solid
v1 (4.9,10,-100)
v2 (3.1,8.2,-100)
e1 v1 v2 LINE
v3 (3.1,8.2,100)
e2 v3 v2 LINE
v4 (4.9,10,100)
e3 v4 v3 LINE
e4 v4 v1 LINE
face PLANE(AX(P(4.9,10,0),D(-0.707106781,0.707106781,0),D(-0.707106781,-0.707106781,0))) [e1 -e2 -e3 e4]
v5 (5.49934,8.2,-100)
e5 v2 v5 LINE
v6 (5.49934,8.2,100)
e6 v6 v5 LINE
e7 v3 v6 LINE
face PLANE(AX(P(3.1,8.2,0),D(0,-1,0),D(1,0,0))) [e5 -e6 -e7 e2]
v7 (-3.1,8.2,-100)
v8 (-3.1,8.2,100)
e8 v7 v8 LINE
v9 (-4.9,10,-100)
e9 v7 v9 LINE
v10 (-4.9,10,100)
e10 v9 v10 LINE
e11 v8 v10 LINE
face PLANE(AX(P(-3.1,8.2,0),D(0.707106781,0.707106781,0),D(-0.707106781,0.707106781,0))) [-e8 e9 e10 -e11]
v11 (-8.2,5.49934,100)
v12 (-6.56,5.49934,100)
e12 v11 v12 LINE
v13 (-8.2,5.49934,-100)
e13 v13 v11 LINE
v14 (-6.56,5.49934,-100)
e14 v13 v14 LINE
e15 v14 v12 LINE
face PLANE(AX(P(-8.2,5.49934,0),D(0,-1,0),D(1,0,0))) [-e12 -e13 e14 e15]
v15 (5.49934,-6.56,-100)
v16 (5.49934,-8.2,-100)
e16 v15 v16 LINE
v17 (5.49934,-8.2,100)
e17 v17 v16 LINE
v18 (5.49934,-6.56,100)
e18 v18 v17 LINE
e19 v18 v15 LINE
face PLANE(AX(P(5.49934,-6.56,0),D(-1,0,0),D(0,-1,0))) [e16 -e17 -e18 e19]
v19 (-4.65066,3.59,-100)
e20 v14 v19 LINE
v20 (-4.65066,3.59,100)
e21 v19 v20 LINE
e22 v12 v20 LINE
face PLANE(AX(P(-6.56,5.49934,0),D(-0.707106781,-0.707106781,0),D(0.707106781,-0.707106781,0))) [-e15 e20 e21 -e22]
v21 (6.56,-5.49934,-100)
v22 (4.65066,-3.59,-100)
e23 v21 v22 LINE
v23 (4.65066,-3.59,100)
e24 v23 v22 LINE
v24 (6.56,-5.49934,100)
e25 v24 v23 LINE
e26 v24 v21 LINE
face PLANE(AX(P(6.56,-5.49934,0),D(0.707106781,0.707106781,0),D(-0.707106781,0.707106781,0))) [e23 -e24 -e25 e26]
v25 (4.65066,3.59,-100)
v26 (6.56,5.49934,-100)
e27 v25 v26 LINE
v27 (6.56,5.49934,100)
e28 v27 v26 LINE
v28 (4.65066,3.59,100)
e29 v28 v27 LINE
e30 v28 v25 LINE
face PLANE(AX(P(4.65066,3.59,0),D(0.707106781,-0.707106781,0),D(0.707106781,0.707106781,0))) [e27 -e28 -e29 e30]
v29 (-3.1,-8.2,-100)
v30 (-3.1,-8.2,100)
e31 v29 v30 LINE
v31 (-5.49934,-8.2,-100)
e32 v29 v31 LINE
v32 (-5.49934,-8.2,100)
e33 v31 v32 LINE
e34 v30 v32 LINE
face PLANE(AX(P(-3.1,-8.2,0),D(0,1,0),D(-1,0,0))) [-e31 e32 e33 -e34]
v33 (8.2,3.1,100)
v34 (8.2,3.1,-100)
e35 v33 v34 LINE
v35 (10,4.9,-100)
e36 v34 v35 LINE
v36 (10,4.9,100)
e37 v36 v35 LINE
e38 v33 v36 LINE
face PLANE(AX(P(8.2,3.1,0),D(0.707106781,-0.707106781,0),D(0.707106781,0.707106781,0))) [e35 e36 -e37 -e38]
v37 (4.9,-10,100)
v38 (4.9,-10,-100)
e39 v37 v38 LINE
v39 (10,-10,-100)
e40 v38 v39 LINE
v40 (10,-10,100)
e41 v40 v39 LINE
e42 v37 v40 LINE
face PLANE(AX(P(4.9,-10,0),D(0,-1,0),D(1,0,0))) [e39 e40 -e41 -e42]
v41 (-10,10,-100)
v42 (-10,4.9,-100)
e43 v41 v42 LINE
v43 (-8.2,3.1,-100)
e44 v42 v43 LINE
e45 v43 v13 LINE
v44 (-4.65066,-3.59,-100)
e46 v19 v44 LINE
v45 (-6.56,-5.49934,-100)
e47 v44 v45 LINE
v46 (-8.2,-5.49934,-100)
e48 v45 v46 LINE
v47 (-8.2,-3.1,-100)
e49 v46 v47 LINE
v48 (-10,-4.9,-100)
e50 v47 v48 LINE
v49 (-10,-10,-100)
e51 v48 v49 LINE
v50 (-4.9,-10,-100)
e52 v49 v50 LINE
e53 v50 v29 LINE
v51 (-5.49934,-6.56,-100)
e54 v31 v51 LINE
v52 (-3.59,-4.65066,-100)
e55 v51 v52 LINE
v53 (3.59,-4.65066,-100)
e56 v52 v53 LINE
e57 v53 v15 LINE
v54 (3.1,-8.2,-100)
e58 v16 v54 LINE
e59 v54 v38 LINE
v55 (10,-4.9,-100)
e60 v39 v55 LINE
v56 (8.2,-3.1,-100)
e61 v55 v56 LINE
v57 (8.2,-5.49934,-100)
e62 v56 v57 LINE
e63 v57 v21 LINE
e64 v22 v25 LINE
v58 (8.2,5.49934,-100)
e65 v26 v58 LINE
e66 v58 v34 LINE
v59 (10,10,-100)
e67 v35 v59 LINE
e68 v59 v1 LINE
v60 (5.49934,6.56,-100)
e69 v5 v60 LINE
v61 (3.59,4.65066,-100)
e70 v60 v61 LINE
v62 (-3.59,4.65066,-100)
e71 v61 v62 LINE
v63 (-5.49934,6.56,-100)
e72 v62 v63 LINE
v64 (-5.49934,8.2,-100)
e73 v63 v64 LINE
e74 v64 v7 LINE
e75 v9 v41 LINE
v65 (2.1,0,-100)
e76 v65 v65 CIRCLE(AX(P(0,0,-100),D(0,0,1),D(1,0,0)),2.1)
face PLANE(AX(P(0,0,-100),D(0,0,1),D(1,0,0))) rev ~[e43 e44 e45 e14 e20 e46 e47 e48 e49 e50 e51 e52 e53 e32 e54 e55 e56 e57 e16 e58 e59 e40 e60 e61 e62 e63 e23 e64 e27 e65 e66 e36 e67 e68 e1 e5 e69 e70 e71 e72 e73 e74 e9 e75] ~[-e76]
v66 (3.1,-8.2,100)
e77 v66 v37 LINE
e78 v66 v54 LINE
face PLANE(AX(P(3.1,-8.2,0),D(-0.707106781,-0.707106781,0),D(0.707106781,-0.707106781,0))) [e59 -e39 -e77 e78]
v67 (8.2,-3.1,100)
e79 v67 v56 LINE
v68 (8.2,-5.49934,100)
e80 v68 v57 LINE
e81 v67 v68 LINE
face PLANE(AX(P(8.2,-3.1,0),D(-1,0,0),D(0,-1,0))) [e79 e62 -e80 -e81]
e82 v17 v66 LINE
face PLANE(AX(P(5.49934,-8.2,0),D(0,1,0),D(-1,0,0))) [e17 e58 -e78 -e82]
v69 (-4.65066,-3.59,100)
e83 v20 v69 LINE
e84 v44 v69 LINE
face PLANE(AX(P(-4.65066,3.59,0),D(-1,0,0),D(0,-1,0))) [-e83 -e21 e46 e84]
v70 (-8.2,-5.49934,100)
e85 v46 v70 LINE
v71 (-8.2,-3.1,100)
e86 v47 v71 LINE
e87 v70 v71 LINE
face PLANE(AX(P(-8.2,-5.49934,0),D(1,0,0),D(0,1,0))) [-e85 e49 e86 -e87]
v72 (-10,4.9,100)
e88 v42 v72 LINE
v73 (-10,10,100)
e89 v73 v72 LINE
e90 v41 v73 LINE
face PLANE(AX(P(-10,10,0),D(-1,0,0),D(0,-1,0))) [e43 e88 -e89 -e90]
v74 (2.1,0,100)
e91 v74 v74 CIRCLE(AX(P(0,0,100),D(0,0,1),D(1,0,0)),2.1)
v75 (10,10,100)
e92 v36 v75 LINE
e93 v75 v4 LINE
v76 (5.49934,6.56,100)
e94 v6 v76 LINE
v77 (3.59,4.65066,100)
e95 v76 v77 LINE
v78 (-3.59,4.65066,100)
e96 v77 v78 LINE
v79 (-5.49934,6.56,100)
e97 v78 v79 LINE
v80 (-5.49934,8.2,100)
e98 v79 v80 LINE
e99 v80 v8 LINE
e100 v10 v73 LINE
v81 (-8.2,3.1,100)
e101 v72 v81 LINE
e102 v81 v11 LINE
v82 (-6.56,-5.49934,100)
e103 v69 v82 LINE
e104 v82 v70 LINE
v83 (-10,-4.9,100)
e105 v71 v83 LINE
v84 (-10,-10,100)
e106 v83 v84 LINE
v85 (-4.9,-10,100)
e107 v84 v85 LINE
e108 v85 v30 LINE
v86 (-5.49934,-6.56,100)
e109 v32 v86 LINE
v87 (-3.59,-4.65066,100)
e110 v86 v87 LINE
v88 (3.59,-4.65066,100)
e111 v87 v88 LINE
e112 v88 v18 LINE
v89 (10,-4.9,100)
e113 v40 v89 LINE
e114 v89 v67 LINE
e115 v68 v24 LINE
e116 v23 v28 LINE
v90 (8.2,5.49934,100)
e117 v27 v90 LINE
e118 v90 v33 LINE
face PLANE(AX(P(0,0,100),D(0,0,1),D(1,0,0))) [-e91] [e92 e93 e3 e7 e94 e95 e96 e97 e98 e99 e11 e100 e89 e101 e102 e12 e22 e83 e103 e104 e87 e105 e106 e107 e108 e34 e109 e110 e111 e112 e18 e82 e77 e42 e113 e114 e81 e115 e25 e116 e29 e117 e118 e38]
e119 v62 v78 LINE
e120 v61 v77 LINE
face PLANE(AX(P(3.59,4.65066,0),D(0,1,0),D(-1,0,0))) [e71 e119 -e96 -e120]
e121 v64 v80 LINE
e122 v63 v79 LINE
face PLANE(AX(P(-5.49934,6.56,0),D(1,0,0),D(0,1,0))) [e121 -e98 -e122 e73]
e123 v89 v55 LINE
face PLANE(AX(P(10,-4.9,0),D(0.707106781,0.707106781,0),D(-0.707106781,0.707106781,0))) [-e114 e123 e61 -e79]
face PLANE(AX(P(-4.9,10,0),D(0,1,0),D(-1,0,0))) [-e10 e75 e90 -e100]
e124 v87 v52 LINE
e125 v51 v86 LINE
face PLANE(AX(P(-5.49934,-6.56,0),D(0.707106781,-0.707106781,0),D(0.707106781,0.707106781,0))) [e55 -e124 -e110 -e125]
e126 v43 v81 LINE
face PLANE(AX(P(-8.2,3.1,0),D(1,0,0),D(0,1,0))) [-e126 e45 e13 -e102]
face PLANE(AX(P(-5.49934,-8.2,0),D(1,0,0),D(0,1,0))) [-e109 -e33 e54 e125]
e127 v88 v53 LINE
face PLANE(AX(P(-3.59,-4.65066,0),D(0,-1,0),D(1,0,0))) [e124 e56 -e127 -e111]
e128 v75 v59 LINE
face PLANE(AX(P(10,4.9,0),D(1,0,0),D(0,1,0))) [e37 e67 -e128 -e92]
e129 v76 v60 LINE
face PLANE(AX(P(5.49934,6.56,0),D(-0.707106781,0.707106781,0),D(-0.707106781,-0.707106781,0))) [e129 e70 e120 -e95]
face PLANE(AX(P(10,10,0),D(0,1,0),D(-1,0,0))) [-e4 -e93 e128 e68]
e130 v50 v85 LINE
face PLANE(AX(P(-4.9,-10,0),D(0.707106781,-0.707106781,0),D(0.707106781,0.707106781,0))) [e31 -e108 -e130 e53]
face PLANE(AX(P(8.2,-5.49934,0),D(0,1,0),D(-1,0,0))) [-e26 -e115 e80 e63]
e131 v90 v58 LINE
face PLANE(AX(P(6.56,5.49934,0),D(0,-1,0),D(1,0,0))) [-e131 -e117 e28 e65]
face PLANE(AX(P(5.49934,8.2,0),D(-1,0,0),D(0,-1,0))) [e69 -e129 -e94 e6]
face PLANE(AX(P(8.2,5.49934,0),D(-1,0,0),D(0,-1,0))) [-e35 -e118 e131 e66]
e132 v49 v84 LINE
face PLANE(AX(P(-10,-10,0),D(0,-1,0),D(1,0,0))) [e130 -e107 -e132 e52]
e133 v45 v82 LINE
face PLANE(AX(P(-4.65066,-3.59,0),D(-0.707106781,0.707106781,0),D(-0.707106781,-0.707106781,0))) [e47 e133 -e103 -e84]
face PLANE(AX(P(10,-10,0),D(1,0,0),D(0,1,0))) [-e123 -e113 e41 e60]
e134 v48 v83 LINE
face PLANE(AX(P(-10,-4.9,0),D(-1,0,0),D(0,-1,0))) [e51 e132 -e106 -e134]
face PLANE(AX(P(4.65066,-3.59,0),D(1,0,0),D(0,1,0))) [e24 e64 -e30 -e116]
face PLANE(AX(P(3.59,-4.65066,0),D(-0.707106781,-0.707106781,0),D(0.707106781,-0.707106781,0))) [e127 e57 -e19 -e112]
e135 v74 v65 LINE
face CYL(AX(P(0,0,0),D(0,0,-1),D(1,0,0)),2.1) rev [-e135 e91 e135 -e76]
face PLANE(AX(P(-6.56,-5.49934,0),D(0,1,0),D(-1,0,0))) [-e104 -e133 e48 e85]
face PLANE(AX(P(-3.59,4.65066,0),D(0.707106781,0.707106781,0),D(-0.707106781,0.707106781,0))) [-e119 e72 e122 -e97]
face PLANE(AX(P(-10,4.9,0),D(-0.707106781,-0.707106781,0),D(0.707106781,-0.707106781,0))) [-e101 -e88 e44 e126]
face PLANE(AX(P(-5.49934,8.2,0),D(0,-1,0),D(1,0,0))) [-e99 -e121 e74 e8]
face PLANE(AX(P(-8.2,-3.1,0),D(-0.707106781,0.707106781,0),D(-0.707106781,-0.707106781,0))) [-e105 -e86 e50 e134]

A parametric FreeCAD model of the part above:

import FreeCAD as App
import Part
import Sketcher

V = App.Vector


def add_polygon(sketch, points):
    """Adds a closed chain of lines whose ends are joined by coincident constraints."""
    first, n = sketch.GeometryCount, len(points)
    for a, b in zip(points, points[1:] + points[:1]):
        sketch.addGeometry(Part.LineSegment(App.Vector(*a, 0), App.Vector(*b, 0)), False)
    for i in range(n):
        sketch.addConstraint(Sketcher.Constraint("Coincident", first + i, 2, first + (i + 1) % n, 1))

doc = App.newDocument("Part")
body = doc.addObject("PartDesign::Body", "Body")

# Sketch on XY plane
sketch1 = body.newObject("Sketcher::SketchObject", "Sketch")
sketch1.AttachmentSupport = (doc.getObject("XY_Plane"), [""])
sketch1.MapMode = "FlatFace"
add_polygon(sketch1, [(5.5, 6.6), (3.6, 4.7), (-3.6, 4.7), (-5.5, 6.6), (-5.5, 8.2), (-3.1, 8.2), (-4.9, 10), (-10, 10), (-10, 4.9), (-8.2, 3.1), (-8.2, 5.5), (-6.6, 5.5), (-4.7, 3.6), (-4.7, -3.6), (-6.6, -5.5), (-8.2, -5.5), (-8.2, -3.1), (-10, -4.9), (-10, -10), (-4.9, -10), (-3.1, -8.2), (-5.5, -8.2), (-5.5, -6.6), (-3.6, -4.7), (3.6, -4.7), (5.5, -6.6), (5.5, -8.2), (3.1, -8.2), (4.9, -10), (10, -10), (10, -4.9), (8.2, -3.1), (8.2, -5.5), (6.6, -5.5), (4.7, -3.6), (4.7, 3.6), (6.6, 5.5), (8.2, 5.5), (8.2, 3.1), (10, 4.9), (10, 10), (4.9, 10), (3.1, 8.2), (5.5, 8.2)])  # lines 0-43
sketch1.addGeometry(Part.Circle(V(0, 0, 0), V(0, 0, 1), 2.1), False)  # 44
sketch1.addConstraint([
    Sketcher.Constraint("Horizontal", 1),
    Sketcher.Constraint("Vertical", 3),
    Sketcher.Constraint("Horizontal", 4),
    Sketcher.Constraint("Horizontal", 6),
    Sketcher.Constraint("Vertical", 7),
    Sketcher.Constraint("Vertical", 9),
    Sketcher.Constraint("Horizontal", 10),
    Sketcher.Constraint("Vertical", 12),
    Sketcher.Constraint("Horizontal", 14),
    Sketcher.Constraint("Vertical", 15),
    Sketcher.Constraint("Vertical", 17),
    Sketcher.Constraint("Horizontal", 18),
    Sketcher.Constraint("Horizontal", 20),
    Sketcher.Constraint("Vertical", 21),
    Sketcher.Constraint("Horizontal", 23),
    Sketcher.Constraint("Vertical", 25),
    Sketcher.Constraint("Horizontal", 26),
    Sketcher.Constraint("Horizontal", 28),
    Sketcher.Constraint("Vertical", 29),
    Sketcher.Constraint("Vertical", 31),
    Sketcher.Constraint("Horizontal", 32),
    Sketcher.Constraint("Vertical", 34),
    Sketcher.Constraint("Horizontal", 36),
    Sketcher.Constraint("Vertical", 37),
    Sketcher.Constraint("Vertical", 39),
    Sketcher.Constraint("Horizontal", 40),
    Sketcher.Constraint("Horizontal", 42),
    Sketcher.Constraint("Vertical", 43),
    Sketcher.Constraint("Coincident", 44, 3, -1, 1),
    Sketcher.Constraint("Symmetric", 0, 2, 22, 2, -1, 1),
    Sketcher.Constraint("Symmetric", 2, 2, 24, 2, -1, 1),
    Sketcher.Constraint("Symmetric", 4, 2, 26, 2, -1, 1),
    Sketcher.Constraint("Symmetric", 5, 2, 27, 2, -1, 1),
    Sketcher.Constraint("Symmetric", 7, 2, 29, 2, -1, 1),
    Sketcher.Constraint("Symmetric", 8, 2, 30, 2, -1, 1),
    Sketcher.Constraint("Symmetric", 10, 2, 32, 2, -1, 1),
    Sketcher.Constraint("Symmetric", 11, 2, 33, 2, -1, 1),
    Sketcher.Constraint("Symmetric", 13, 2, 35, 2, -1, 1),
    Sketcher.Constraint("Symmetric", 15, 2, 37, 2, -1, 1),
    Sketcher.Constraint("Symmetric", 16, 2, 38, 2, -1, 1),
    Sketcher.Constraint("Symmetric", 18, 2, 40, 2, -1, 1),
    Sketcher.Constraint("Symmetric", 19, 2, 41, 2, -1, 1),
    Sketcher.Constraint("Symmetric", 21, 2, 43, 2, -1, 1),
    Sketcher.Constraint("Symmetric", 21, 2, 24, 2, -2),
    Sketcher.Constraint("Symmetric", 19, 2, 26, 2, -2),
    Sketcher.Constraint("Symmetric", 18, 2, 27, 2, -2),
    Sketcher.Constraint("Symmetric", 16, 2, 29, 2, -2),
    Sketcher.Constraint("Symmetric", 15, 2, 30, 2, -2),
    Sketcher.Constraint("Symmetric", 13, 2, 32, 2, -2),
    Sketcher.Constraint("Perpendicular", 0, 2),
    Sketcher.Constraint("Parallel", 2, 5),
    Sketcher.Constraint("Parallel", 5, 8),
    Sketcher.Constraint("Parallel", 8, 11),
    Sketcher.Constraint("Perpendicular", 11, 13),
    Sketcher.Constraint("Parallel", 13, 16),
    Sketcher.Constraint("Perpendicular", 22, 24),
    Sketcher.Constraint("Perpendicular", 33, 35),
    Sketcher.Constraint("Equal", 36, 3),
    Sketcher.Constraint("Equal", 40, 7),
    Sketcher.Constraint("Equal", 42, 9),
    Sketcher.Constraint("Equal", 23, 12),
    Sketcher.Constraint("Equal", 5, 8),
    Sketcher.Constraint("Equal", 2, 11),
    Sketcher.Constraint("Diameter", 44, 4.2),
    Sketcher.Constraint("DistanceX", 6, 2, 6, 1, 5.1),
    Sketcher.Constraint("DistanceY", -1, 1, 5, 2, 10.0),
    Sketcher.Constraint("DistanceY", 16, 2, 8, 2, 8.0),
    Sketcher.Constraint("DistanceX", 1, 2, 1, 1, 7.18),
    Sketcher.Constraint("DistanceX", 10, 1, 10, 2, 1.64),
    Sketcher.Constraint("DistanceX", 4, 1, 4, 2, 2.39934),
])
pad1 = body.newObject("PartDesign::Pad", "Pad")
pad1.Profile = sketch1
pad1.Length = 200
pad1.Midplane = True

doc.recompute()
